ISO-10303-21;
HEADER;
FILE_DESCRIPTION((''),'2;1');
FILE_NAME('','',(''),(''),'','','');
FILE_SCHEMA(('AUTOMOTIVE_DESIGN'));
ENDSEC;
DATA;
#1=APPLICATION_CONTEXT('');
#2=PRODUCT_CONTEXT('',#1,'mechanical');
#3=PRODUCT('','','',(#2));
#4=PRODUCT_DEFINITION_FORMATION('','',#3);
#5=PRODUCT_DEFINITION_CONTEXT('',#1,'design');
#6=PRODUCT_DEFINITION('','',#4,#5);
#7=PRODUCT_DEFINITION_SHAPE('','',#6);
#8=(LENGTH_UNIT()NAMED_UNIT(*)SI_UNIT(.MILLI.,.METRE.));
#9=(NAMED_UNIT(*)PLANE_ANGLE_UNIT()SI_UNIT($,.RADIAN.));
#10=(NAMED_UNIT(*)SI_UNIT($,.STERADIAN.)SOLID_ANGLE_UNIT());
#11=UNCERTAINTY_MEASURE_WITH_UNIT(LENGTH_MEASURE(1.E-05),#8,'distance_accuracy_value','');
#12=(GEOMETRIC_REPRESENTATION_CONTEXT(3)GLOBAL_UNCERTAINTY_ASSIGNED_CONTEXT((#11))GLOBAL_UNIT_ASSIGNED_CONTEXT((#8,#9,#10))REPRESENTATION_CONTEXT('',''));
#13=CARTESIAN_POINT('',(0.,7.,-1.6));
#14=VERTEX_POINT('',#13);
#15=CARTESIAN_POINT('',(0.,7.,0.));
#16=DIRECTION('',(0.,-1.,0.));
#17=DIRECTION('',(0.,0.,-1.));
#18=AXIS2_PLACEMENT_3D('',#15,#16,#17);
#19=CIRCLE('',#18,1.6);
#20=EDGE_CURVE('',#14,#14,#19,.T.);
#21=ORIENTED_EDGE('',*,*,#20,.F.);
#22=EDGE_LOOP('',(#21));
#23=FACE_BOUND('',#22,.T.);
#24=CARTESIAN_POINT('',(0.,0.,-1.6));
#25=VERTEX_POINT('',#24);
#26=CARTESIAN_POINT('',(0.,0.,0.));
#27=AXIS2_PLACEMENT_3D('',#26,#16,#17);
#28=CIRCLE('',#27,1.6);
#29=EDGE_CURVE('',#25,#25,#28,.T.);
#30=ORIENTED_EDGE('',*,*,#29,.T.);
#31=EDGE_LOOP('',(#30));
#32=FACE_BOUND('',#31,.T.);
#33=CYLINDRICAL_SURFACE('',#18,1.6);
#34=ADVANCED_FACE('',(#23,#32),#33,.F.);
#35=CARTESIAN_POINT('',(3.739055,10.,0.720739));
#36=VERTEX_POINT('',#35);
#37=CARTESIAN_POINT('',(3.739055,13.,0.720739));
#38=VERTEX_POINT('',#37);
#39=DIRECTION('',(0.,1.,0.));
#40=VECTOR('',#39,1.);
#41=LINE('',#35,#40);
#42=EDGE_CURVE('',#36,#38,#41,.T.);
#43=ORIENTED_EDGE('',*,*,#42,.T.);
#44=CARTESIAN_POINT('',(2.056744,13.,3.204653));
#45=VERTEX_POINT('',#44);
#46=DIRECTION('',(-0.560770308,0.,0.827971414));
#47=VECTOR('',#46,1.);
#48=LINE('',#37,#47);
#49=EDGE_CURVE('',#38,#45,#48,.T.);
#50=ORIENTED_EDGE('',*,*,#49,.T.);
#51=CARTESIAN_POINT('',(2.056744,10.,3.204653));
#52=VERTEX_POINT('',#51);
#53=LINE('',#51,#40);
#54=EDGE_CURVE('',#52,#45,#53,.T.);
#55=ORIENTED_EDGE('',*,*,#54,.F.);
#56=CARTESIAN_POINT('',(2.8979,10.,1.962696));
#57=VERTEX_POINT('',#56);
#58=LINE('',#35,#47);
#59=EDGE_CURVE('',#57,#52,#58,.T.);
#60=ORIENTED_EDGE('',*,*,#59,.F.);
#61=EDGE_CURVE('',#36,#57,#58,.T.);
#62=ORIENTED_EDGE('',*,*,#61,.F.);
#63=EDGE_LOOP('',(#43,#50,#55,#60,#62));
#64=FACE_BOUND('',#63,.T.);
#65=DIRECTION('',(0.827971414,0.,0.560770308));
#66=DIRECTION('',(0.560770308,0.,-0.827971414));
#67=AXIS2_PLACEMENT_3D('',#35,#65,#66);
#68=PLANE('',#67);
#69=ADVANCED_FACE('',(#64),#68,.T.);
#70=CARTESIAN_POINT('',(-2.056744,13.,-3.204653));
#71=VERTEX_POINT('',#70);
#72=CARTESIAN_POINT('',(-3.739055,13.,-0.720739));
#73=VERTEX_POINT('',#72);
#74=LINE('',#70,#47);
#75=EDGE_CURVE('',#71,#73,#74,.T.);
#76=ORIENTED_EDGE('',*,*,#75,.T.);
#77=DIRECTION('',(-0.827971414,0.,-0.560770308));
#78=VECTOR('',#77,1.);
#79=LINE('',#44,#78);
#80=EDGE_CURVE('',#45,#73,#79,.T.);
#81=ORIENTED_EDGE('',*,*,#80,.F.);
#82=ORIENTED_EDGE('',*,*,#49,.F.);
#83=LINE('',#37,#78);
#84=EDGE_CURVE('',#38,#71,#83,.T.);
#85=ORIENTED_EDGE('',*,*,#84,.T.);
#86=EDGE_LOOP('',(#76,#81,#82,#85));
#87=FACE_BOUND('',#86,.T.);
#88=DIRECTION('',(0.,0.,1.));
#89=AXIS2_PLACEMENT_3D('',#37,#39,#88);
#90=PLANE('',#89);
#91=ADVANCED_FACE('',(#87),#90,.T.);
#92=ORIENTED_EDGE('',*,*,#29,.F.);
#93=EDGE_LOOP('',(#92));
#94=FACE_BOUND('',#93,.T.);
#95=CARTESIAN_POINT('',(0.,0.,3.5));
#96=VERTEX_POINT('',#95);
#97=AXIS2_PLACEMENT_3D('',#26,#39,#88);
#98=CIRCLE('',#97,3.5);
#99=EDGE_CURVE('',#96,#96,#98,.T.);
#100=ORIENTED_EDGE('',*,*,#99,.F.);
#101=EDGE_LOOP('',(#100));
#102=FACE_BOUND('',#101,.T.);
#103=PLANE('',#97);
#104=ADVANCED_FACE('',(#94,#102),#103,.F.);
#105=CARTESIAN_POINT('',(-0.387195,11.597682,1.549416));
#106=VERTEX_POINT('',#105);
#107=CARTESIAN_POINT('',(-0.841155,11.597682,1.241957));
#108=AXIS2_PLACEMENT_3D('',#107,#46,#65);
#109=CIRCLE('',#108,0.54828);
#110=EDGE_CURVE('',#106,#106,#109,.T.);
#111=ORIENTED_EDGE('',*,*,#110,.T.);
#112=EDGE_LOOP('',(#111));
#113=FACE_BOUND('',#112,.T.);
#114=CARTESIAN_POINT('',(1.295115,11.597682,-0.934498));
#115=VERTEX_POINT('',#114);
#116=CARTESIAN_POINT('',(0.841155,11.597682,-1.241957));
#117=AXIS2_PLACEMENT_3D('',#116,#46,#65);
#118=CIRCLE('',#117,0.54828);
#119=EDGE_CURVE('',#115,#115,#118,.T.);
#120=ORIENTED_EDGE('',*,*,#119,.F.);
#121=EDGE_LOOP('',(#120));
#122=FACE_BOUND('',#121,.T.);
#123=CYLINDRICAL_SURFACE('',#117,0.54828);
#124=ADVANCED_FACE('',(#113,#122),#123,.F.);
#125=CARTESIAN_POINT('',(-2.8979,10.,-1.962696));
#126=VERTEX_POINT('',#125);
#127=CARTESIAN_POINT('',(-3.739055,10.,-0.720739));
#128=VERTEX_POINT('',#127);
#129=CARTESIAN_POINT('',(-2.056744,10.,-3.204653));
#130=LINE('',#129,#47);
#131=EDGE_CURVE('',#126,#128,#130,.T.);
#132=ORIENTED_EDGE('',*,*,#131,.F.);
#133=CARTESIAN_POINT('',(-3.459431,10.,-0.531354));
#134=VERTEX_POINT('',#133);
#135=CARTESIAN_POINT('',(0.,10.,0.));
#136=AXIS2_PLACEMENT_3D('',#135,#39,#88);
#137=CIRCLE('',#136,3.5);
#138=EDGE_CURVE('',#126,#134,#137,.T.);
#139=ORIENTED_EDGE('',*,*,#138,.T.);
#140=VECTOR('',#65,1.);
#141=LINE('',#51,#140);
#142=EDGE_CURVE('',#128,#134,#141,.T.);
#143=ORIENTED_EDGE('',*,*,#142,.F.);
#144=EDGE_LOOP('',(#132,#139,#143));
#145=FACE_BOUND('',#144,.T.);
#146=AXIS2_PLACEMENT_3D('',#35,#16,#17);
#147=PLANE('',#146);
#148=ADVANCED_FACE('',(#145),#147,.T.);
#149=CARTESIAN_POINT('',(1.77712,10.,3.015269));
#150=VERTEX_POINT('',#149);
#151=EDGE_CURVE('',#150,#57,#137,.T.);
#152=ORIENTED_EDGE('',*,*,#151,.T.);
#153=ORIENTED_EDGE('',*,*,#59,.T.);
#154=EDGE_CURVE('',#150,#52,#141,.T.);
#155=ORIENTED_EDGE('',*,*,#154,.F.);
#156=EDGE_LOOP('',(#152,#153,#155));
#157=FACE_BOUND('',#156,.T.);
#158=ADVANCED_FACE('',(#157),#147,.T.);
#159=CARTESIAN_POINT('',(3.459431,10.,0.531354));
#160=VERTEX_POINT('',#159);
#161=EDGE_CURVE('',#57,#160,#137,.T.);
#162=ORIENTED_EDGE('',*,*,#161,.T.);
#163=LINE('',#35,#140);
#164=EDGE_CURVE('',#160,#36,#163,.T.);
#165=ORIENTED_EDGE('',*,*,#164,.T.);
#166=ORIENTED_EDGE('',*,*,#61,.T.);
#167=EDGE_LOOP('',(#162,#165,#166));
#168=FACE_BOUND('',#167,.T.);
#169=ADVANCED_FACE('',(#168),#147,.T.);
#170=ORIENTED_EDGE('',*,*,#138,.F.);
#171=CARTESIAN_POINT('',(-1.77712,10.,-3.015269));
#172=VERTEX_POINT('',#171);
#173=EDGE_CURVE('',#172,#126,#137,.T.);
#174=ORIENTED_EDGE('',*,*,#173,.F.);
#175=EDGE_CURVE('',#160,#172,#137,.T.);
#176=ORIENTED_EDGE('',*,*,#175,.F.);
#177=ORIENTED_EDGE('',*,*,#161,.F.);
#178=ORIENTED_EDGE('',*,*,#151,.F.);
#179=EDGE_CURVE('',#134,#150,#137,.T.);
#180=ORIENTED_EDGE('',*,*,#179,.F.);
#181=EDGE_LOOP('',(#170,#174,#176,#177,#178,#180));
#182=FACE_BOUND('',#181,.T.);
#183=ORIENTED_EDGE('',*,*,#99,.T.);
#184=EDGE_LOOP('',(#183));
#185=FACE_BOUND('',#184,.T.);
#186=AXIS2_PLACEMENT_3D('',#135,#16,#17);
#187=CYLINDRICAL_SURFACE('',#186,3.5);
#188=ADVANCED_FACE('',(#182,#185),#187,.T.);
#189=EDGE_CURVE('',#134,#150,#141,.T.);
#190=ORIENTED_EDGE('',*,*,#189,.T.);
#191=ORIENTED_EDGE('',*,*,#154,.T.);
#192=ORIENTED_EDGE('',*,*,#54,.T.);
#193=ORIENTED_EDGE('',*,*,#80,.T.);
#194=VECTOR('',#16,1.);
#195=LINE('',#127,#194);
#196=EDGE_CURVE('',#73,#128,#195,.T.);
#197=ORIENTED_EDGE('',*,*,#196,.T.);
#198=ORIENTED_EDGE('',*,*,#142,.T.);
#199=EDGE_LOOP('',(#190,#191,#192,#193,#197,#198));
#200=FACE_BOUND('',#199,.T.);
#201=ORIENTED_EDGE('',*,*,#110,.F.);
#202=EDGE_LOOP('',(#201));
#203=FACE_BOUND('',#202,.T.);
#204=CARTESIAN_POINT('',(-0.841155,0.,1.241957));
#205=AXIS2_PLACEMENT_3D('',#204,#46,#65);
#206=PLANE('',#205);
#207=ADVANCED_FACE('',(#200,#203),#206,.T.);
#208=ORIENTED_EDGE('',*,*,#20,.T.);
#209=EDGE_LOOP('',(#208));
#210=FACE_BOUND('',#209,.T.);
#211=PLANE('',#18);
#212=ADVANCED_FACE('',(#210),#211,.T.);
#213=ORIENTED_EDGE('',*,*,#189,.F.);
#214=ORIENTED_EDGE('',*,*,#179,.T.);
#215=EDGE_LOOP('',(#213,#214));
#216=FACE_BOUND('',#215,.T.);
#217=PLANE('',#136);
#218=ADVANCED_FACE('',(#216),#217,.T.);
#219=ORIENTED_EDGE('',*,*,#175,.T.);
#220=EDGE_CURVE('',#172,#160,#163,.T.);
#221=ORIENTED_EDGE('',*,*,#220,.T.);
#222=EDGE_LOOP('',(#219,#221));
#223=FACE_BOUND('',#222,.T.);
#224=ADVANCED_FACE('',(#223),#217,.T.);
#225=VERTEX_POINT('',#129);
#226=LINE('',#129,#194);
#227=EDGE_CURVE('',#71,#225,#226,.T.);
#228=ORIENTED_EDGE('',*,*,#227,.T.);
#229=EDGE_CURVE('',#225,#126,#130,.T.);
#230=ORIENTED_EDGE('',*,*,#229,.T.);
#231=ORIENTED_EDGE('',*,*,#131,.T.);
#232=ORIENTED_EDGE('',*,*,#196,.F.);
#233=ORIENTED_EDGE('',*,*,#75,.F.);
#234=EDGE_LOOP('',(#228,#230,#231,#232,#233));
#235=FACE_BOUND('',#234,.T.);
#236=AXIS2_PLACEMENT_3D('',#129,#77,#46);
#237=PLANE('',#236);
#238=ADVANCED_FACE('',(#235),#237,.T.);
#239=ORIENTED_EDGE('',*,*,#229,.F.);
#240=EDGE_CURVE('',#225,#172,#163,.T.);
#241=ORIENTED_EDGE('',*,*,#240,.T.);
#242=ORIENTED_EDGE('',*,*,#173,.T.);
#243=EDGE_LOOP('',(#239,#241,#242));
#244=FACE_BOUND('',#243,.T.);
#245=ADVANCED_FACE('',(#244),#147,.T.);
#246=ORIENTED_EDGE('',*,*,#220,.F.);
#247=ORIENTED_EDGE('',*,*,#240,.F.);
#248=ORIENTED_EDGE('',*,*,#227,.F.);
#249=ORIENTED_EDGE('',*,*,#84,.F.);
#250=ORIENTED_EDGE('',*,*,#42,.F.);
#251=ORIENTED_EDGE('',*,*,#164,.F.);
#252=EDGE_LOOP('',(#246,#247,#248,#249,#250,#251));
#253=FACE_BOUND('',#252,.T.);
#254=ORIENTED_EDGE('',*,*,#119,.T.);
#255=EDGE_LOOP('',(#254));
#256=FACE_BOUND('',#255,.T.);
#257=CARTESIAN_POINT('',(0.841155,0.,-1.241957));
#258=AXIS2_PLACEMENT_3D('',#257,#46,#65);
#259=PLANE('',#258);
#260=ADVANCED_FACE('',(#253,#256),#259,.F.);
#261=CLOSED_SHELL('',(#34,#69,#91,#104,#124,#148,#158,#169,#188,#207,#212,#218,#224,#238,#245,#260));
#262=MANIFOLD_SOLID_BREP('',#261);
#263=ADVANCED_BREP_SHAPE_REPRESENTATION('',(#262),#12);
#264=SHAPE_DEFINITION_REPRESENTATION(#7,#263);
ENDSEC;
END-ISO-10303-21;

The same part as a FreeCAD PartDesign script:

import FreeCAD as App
import Part
import Sketcher


def add_polygon(sketch, points):
    """Adds a closed chain of lines whose ends are joined by coincident constraints."""
    first, n = sketch.GeometryCount, len(points)
    for a, b in zip(points, points[1:] + points[:1]):
        sketch.addGeometry(Part.LineSegment(App.Vector(*a, 0), App.Vector(*b, 0)), False)
    for i in range(n):
        sketch.addConstraint(Sketcher.Constraint("Coincident", first + i, 2, first + (i + 1) % n, 1))

doc = App.newDocument("Part")
body = doc.addObject("PartDesign::Body", "Body")

# Sketch on XZ plane
sketch1 = body.newObject("Sketcher::SketchObject", "Sketch")
sketch1.AttachmentSupport = (doc.getObject("XZ_Plane"), [""])
sketch1.MapMode = "FlatFace"
sketch1.addGeometry(Part.Circle(App.Vector(0, 0, 0), App.Vector(0, 0, 1), 3.5), False)
sketch1.addConstraint([
    Sketcher.Constraint("Coincident", 0, 3, -1, 1),
    Sketcher.Constraint("Diameter", 0, 7.0),
])
pad1 = body.newObject("PartDesign::Pad", "Pad")
pad1.Profile = sketch1
pad1.Length = 10
pad1.Reversed = True

# Sketch on XZ plane
sketch2 = body.newObject("Sketcher::SketchObject", "Sketch001")
sketch2.AttachmentSupport = (doc.getObject("XZ_Plane"), [""])
sketch2.MapMode = "FlatFace"
sketch2.addGeometry(Part.Circle(App.Vector(0, 0, 0), App.Vector(0, 0, 1), 1.6), False)
sketch2.addConstraint([
    Sketcher.Constraint("Coincident", 0, 3, -1, 1),
    Sketcher.Constraint("Diameter", 0, 3.2),
])
pocket1 = body.newObject("PartDesign::Pocket", "Pocket")
pocket1.Profile = sketch2
pocket1.Length = 7

# Sketch on an angled plane
sketch3 = body.newObject("Sketcher::SketchObject", "Sketch002")
sketch3.Placement = App.Placement(App.Vector(0, 0, 0), App.Rotation(App.Vector(0.827971414, 0, 0.560770308), App.Vector(0, 1.000000001, 0), App.Vector(-0.560770308, 0, 0.827971414), "ZXY"))
add_polygon(sketch3, [(-3.5, 13), (-3.5, 10), (3.5, 10), (3.5, 13)])  # lines 0-3
sketch3.addGeometry(Part.Circle(App.Vector(0, 11.6, 0), App.Vector(0, 0, 1), 0.5), False)  # 4
sketch3.addConstraint([
    Sketcher.Constraint("Vertical", 0),
    Sketcher.Constraint("Horizontal", 1),
    Sketcher.Constraint("Vertical", 2),
    Sketcher.Constraint("Horizontal", 3),
    Sketcher.Constraint("PointOnObject", 4, 3, -2),
    Sketcher.Constraint("DistanceX", 1, 1, 1, 2, 7.0),
    Sketcher.Constraint("DistanceY", 0, 2, 0, 1, 3.0),
    Sketcher.Constraint("DistanceY", -1, 1, 0, 2, 10.0),
    Sketcher.Constraint("DistanceX", 0, 2, -1, 1, 3.5),
    Sketcher.Constraint("Diameter", 4, 1.09656),
    Sketcher.Constraint("DistanceY", -1, 1, 4, 3, 11.597682),
])
pad2 = body.newObject("PartDesign::Pad", "Pad001")
pad2.Profile = sketch3
pad2.Type = "TwoLengths"
pad2.Length = 1.5
pad2.Length2 = 1.5

doc.recompute()
